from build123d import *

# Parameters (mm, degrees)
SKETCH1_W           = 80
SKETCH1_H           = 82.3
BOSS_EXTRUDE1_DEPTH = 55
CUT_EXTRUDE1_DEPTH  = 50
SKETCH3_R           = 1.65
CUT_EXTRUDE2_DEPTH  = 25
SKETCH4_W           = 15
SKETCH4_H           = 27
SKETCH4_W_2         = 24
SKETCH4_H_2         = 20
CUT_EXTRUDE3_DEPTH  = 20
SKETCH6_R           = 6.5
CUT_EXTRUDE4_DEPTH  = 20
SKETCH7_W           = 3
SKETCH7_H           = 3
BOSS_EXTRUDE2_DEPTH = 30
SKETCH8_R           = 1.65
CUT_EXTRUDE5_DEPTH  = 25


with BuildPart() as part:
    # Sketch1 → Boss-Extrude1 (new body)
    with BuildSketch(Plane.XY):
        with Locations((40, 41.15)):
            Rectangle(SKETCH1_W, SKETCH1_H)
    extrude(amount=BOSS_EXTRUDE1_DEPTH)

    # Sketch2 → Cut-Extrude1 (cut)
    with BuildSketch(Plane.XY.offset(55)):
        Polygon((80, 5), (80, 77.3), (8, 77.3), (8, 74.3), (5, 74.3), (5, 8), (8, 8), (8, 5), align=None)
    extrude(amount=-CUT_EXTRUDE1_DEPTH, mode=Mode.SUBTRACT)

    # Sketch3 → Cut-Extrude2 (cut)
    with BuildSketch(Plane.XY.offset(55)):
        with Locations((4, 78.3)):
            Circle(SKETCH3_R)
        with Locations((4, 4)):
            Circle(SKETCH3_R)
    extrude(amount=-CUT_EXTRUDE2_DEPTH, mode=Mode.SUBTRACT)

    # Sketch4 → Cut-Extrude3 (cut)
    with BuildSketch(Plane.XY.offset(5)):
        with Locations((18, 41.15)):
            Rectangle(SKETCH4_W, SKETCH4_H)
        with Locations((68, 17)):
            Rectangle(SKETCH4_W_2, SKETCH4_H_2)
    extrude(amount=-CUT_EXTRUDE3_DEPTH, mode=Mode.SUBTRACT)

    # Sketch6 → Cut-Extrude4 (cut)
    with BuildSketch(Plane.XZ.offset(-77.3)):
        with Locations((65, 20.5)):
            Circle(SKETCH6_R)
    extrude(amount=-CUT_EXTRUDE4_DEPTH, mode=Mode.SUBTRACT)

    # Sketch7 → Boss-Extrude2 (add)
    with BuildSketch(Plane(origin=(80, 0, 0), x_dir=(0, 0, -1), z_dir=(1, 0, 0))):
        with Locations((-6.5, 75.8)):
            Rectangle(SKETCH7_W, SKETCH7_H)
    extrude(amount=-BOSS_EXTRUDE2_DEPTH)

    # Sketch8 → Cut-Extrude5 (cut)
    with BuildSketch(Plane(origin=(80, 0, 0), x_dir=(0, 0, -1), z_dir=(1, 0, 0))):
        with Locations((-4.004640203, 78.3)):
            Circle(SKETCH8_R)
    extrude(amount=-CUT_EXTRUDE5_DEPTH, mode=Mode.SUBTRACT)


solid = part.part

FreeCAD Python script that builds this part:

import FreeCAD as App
import Part
import Sketcher
from FreeCAD import Vector

doc = App.newDocument("Part")
body = doc.addObject("PartDesign::Body", "Body")

sketch1 = doc.addObject("Sketcher::SketchObject", "Sketch")
body.addObject(sketch1)
sketch1.AttachmentSupport = (doc.XY_Plane, [""])
sketch1.MapMode = "FlatFace"
sketch1.addGeometry([
    Part.LineSegment(Vector(0, 82, 0), Vector(0, 0, 0)),
    Part.LineSegment(Vector(0, 0, 0), Vector(80, 0, 0)),
    Part.LineSegment(Vector(80, 0, 0), Vector(80, 82, 0)),
    Part.LineSegment(Vector(80, 82, 0), Vector(0, 82, 0)),
], False)
sketch1.addConstraint([
    Sketcher.Constraint("Coincident", 0, 2, 1, 1),
    Sketcher.Constraint("Coincident", 1, 2, 2, 1),
    Sketcher.Constraint("Coincident", 2, 2, 3, 1),
    Sketcher.Constraint("Coincident", 3, 2, 0, 1),
    Sketcher.Constraint("Vertical", 0),
    Sketcher.Constraint("Horizontal", 1),
    Sketcher.Constraint("Vertical", 2),
    Sketcher.Constraint("Horizontal", 3),
    Sketcher.Constraint("Coincident", 0, 2, -1, 1),
    Sketcher.Constraint("DistanceX", 1, 1, 1, 2, 80.0),
    Sketcher.Constraint("DistanceY", 0, 2, 0, 1, 82.3),
])
pad1 = doc.addObject("PartDesign::Pad", "Pad")
body.addObject(pad1)
pad1.Profile = sketch1
pad1.Length = 55

sketch2 = doc.addObject("Sketcher::SketchObject", "Sketch001")
body.addObject(sketch2)
sketch2.AttachmentSupport = (doc.XY_Plane, [""])
sketch2.MapMode = "FlatFace"
sketch2.AttachmentOffset = App.Placement(Vector(0, 0, 55), App.Rotation())
sketch2.addGeometry([
    Part.LineSegment(Vector(80, 5, 0), Vector(80, 77.3, 0)),
    Part.LineSegment(Vector(80, 77.3, 0), Vector(8, 77.3, 0)),
    Part.LineSegment(Vector(8, 77.3, 0), Vector(8, 74.3, 0)),
    Part.LineSegment(Vector(8, 74.3, 0), Vector(5, 74.3, 0)),
    Part.LineSegment(Vector(5, 74.3, 0), Vector(5, 8, 0)),
    Part.LineSegment(Vector(5, 8, 0), Vector(8, 8, 0)),
    Part.LineSegment(Vector(8, 8, 0), Vector(8, 5, 0)),
    Part.LineSegment(Vector(8, 5, 0), Vector(80, 5, 0)),
], False)
sketch2.addConstraint([
    Sketcher.Constraint("Coincident", 0, 2, 1, 1),
    Sketcher.Constraint("Coincident", 1, 2, 2, 1),
    Sketcher.Constraint("Coincident", 2, 2, 3, 1),
    Sketcher.Constraint("Coincident", 3, 2, 4, 1),
    Sketcher.Constraint("Coincident", 4, 2, 5, 1),
    Sketcher.Constraint("Coincident", 5, 2, 6, 1),
    Sketcher.Constraint("Coincident", 6, 2, 7, 1),
    Sketcher.Constraint("Coincident", 7, 2, 0, 1),
    Sketcher.Constraint("Vertical", 0),
    Sketcher.Constraint("Horizontal", 1),
    Sketcher.Constraint("Vertical", 2),
    Sketcher.Constraint("Horizontal", 3),
    Sketcher.Constraint("Vertical", 4),
    Sketcher.Constraint("Horizontal", 5),
    Sketcher.Constraint("Vertical", 6),
    Sketcher.Constraint("Horizontal", 7),
    Sketcher.Constraint("Vertical", 2, 2, 5, 2),
    Sketcher.Constraint("Equal", 5, 2),
    Sketcher.Constraint("Equal", 2, 6),
    Sketcher.Constraint("DistanceX", 1, 2, 1, 1, 72.0),
    Sketcher.Constraint("DistanceX", 3, 2, 3, 1, 3.0),
    Sketcher.Constraint("DistanceY", 0, 1, 0, 2, 72.3),
    Sketcher.Constraint("DistanceX", -1, 1, 0, 2, 80.0),
    Sketcher.Constraint("DistanceY", -1, 1, 4, 2, 8.0),
])
pocket1 = doc.addObject("PartDesign::Pocket", "Pocket")
body.addObject(pocket1)
pocket1.Profile = sketch2
pocket1.Length = 50

sketch3 = doc.addObject("Sketcher::SketchObject", "Sketch002")
body.addObject(sketch3)
sketch3.AttachmentSupport = (doc.XY_Plane, [""])
sketch3.MapMode = "FlatFace"
sketch3.AttachmentOffset = App.Placement(Vector(0, 0, 55), App.Rotation())
sketch3.addGeometry([
    Part.Circle(Vector(4, 78.3, 0), Vector(0, 0, 1), 1.6),
    Part.Circle(Vector(4, 4, 0), Vector(0, 0, 1), 1.6),
], False)
sketch3.addConstraint([
    Sketcher.Constraint("Equal", 0, 1),
    Sketcher.Constraint("Vertical", 0, 3, 1, 3),
    Sketcher.Constraint("Diameter", 0, 3.3),
    Sketcher.Constraint("DistanceX", -1, 1, 0, 3, 4.0),
    Sketcher.Constraint("DistanceY", -1, 1, 1, 3, 4.0),
    Sketcher.Constraint("DistanceY", -1, 1, 0, 3, 78.3),
])
pocket2 = doc.addObject("PartDesign::Pocket", "Pocket001")
body.addObject(pocket2)
pocket2.Profile = sketch3
pocket2.Length = 25

sketch4 = doc.addObject("Sketcher::SketchObject", "Sketch003")
body.addObject(sketch4)
sketch4.AttachmentSupport = (doc.XY_Plane, [""])
sketch4.MapMode = "FlatFace"
sketch4.AttachmentOffset = App.Placement(Vector(0, 0, 5), App.Rotation())
sketch4.addGeometry([
    Part.LineSegment(Vector(10, 55, 0), Vector(10, 28, 0)),
    Part.LineSegment(Vector(10, 28, 0), Vector(26, 28, 0)),
    Part.LineSegment(Vector(26, 28, 0), Vector(26, 55, 0)),
    Part.LineSegment(Vector(26, 55, 0), Vector(10, 55, 0)),
    Part.LineSegment(Vector(56, 27, 0), Vector(56, 7, 0)),
    Part.LineSegment(Vector(56, 7, 0), Vector(80, 7, 0)),
    Part.LineSegment(Vector(80, 7, 0), Vector(80, 27, 0)),
    Part.LineSegment(Vector(80, 27, 0), Vector(56, 27, 0)),
], False)
sketch4.addConstraint([
    Sketcher.Constraint("Coincident", 0, 2, 1, 1),
    Sketcher.Constraint("Coincident", 1, 2, 2, 1),
    Sketcher.Constraint("Coincident", 2, 2, 3, 1),
    Sketcher.Constraint("Coincident", 3, 2, 0, 1),
    Sketcher.Constraint("Coincident", 4, 2, 5, 1),
    Sketcher.Constraint("Coincident", 5, 2, 6, 1),
    Sketcher.Constraint("Coincident", 6, 2, 7, 1),
    Sketcher.Constraint("Coincident", 7, 2, 4, 1),
    Sketcher.Constraint("Vertical", 0),
    Sketcher.Constraint("Horizontal", 1),
    Sketcher.Constraint("Vertical", 2),
    Sketcher.Constraint("Horizontal", 3),
    Sketcher.Constraint("Vertical", 4),
    Sketcher.Constraint("Horizontal", 5),
    Sketcher.Constraint("Vertical", 6),
    Sketcher.Constraint("Horizontal", 7),
    Sketcher.Constraint("DistanceX", 1, 1, 1, 2, 15.0),
    Sketcher.Constraint("DistanceX", 5, 1, 5, 2, 24.0),
    Sketcher.Constraint("DistanceY", 0, 2, 0, 1, 27.0),
    Sketcher.Constraint("DistanceY", 4, 2, 4, 1, 20.0),
    Sketcher.Constraint("DistanceX", -1, 1, 4, 2, 56.0),
    Sketcher.Constraint("DistanceY", -1, 1, 4, 2, 7.0),
    Sketcher.Constraint("DistanceX", -1, 1, 0, 2, 10.5),
    Sketcher.Constraint("DistanceY", -1, 1, 0, 2, 27.65),
])
pocket3 = doc.addObject("PartDesign::Pocket", "Pocket002")
body.addObject(pocket3)
pocket3.Profile = sketch4
pocket3.Length = 20

sketch5 = doc.addObject("Sketcher::SketchObject", "Sketch004")
body.addObject(sketch5)
sketch5.AttachmentSupport = (doc.XZ_Plane, [""])
sketch5.MapMode = "FlatFace"
sketch5.AttachmentOffset = App.Placement(Vector(0, 0, -77.3), App.Rotation())
sketch5.addGeometry(Part.Circle(Vector(65, 20, 0), Vector(0, 0, 1), 6), False)
sketch5.addConstraint([
    Sketcher.Constraint("Diameter", 0, 13.0),
    Sketcher.Constraint("DistanceX", -1, 1, 0, 3, 65.0),
    Sketcher.Constraint("DistanceY", -1, 1, 0, 3, 20.5),
])
pocket4 = doc.addObject("PartDesign::Pocket", "Pocket003")
body.addObject(pocket4)
pocket4.Profile = sketch5
pocket4.Length = 20

sketch6 = doc.addObject("Sketcher::SketchObject", "Sketch005")
body.addObject(sketch6)
sketch6.AttachmentSupport = (doc.YZ_Plane, [""])
sketch6.MapMode = "FlatFace"
sketch6.AttachmentOffset = App.Placement(Vector(0, 0, 80), App.Rotation())
sketch6.addGeometry([
    Part.LineSegment(Vector(77.3, 8, 0), Vector(74.3, 8, 0)),
    Part.LineSegment(Vector(74.3, 8, 0), Vector(74.3, 5, 0)),
    Part.LineSegment(Vector(74.3, 5, 0), Vector(77.3, 5, 0)),
    Part.LineSegment(Vector(77.3, 5, 0), Vector(77.3, 8, 0)),
], False)
sketch6.addConstraint([
    Sketcher.Constraint("Coincident", 0, 2, 1, 1),
    Sketcher.Constraint("Coincident", 1, 2, 2, 1),
    Sketcher.Constraint("Coincident", 2, 2, 3, 1),
    Sketcher.Constraint("Coincident", 3, 2, 0, 1),
    Sketcher.Constraint("Horizontal", 0),
    Sketcher.Constraint("Vertical", 1),
    Sketcher.Constraint("Horizontal", 2),
    Sketcher.Constraint("Vertical", 3),
    Sketcher.Constraint("Equal", 2, 1),
    Sketcher.Constraint("DistanceX", 0, 2, 0, 1, 3.0),
    Sketcher.Constraint("DistanceY", -1, 1, 0, 2, 8.0),
    Sketcher.Constraint("DistanceX", -1, 1, 0, 2, 74.3),
])
pad2 = doc.addObject("PartDesign::Pad", "Pad001")
body.addObject(pad2)
pad2.Profile = sketch6
pad2.Length = 30
pad2.Reversed = True

sketch7 = doc.addObject("Sketcher::SketchObject", "Sketch006")
body.addObject(sketch7)
sketch7.AttachmentSupport = (doc.YZ_Plane, [""])
sketch7.MapMode = "FlatFace"
sketch7.AttachmentOffset = App.Placement(Vector(0, 0, 80), App.Rotation())
sketch7.addGeometry(Part.Circle(Vector(78.3, 4, 0), Vector(0, 0, 1), 1.6), False)
sketch7.addConstraint([
    Sketcher.Constraint("Diameter", 0, 3.3),
    Sketcher.Constraint("DistanceX", -1, 1, 0, 3, 78.3),
    Sketcher.Constraint("DistanceY", -1, 1, 0, 3, 4.00464),
])
pocket5 = doc.addObject("PartDesign::Pocket", "Pocket004")
body.addObject(pocket5)
pocket5.Profile = sketch7
pocket5.Length = 25

doc.recompute()
